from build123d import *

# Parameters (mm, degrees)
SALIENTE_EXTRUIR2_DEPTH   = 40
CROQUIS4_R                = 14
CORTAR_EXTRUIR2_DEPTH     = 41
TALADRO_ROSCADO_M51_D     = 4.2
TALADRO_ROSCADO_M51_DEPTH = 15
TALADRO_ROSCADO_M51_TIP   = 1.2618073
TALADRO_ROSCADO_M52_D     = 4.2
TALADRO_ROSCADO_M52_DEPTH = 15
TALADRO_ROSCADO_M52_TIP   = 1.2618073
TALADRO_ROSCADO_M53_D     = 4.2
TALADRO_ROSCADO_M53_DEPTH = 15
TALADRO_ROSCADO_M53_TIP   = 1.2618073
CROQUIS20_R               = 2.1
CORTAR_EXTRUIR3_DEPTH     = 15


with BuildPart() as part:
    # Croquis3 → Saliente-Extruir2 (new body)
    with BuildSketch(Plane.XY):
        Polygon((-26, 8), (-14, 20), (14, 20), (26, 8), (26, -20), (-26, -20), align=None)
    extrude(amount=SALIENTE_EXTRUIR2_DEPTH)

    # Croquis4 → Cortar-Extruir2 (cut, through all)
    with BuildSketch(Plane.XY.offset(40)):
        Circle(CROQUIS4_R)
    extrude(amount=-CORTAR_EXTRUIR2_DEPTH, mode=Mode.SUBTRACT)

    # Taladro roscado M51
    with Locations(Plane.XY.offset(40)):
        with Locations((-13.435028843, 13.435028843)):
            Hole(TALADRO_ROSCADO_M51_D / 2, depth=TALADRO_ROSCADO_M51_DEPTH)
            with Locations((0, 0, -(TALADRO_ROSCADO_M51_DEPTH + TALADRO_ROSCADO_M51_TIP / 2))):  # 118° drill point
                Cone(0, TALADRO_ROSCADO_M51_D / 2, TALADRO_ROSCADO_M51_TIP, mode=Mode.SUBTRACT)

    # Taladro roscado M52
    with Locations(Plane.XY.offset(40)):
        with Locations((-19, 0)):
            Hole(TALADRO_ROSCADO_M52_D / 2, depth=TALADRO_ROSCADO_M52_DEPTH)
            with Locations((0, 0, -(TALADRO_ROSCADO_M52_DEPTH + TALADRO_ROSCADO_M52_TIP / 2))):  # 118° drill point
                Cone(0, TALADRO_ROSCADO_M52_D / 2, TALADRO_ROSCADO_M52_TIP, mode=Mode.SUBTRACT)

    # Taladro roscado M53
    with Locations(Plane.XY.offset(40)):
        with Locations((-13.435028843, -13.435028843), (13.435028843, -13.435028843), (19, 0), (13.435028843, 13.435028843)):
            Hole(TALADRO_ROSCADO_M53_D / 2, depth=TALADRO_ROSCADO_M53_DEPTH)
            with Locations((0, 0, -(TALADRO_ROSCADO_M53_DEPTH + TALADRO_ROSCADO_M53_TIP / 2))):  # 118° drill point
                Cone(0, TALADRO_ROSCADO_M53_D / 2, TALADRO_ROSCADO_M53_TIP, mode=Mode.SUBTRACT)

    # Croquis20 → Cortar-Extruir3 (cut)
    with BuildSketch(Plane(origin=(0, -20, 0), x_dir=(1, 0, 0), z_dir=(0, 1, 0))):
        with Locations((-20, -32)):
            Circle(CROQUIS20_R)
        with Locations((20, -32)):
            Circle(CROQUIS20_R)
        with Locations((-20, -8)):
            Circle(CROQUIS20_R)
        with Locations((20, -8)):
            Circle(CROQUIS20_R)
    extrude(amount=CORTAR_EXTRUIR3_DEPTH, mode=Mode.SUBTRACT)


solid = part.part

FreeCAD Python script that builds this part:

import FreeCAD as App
import Part
import Sketcher
from FreeCAD import Vector
Q = App.Units.Quantity


def add_polygon(sketch, points):
    """Adds a closed chain of lines whose ends are joined by coincident constraints."""
    first, n = sketch.GeometryCount, len(points)
    for a, b in zip(points, points[1:] + points[:1]):
        sketch.addGeometry(Part.LineSegment(App.Vector(*a, 0), App.Vector(*b, 0)), False)
    for i in range(n):
        sketch.addConstraint(Sketcher.Constraint("Coincident", first + i, 2, first + (i + 1) % n, 1))

doc = App.newDocument("Part")
body = doc.addObject("PartDesign::Body", "Body")

# Sketch on XY plane
sketch1 = body.newObject("Sketcher::SketchObject", "Sketch")
sketch1.AttachmentSupport = (doc.getObject("XY_Plane"), [""])
sketch1.MapMode = "FlatFace"
add_polygon(sketch1, [(-14, 20), (-26, 8), (-26, -20), (26, -20), (26, 8), (14, 20)])  # lines 0-5
sketch1.addConstraint([
    Sketcher.Constraint("Vertical", 1),
    Sketcher.Constraint("Horizontal", 2),
    Sketcher.Constraint("Vertical", 3),
    Sketcher.Constraint("Horizontal", 5),
    Sketcher.Constraint("Symmetric", 0, 2, 3, 2, -2),
    Sketcher.Constraint("Perpendicular", 0, 4),
    Sketcher.Constraint("Equal", 5, 1),
    Sketcher.Constraint("Equal", 0, 4),
    Sketcher.Constraint("DistanceX", 2, 1, 2, 2, Q("52 mm")),
    Sketcher.Constraint("DistanceX", 5, 2, 5, 1, Q("28 mm")),
    Sketcher.Constraint("DistanceY", -1, 1, 0, 2, Q("8 mm")),
])
pad1 = body.newObject("PartDesign::Pad", "Pad")
pad1.Profile = sketch1
pad1.Length = 40

# Sketch on XY plane
sketch2 = body.newObject("Sketcher::SketchObject", "Sketch001")
sketch2.AttachmentSupport = (doc.getObject("XY_Plane"), [""])
sketch2.MapMode = "FlatFace"
sketch2.AttachmentOffset = App.Placement(Vector(0, 0, 40), App.Rotation())
sketch2.addGeometry(Part.Circle(Vector(0, 0, 0), Vector(0, 0, 1), 14), False)
sketch2.addConstraint([
    Sketcher.Constraint("Coincident", 0, 3, -1, 1),
    Sketcher.Constraint("Diameter", 0, Q("28 mm")),
])
pocket1 = body.newObject("PartDesign::Pocket", "Pocket")
pocket1.Profile = sketch2
pocket1.Type = "ThroughAll"

# Sketch on XY plane
sketch3 = body.newObject("Sketcher::SketchObject", "Sketch002")
sketch3.AttachmentSupport = (doc.getObject("XY_Plane"), [""])
sketch3.MapMode = "FlatFace"
sketch3.AttachmentOffset = App.Placement(Vector(0, 0, 40), App.Rotation())
sketch3.addGeometry(Part.Circle(Vector(-13.4, 13.4, 0), Vector(0, 0, 1), 2.1), False)
sketch3.addConstraint([
    Sketcher.Constraint("Diameter", 0, Q("4.2 mm")),
    Sketcher.Constraint("DistanceX", 0, 3, -1, 1, Q("13.435029 mm")),
    Sketcher.Constraint("DistanceY", -1, 1, 0, 3, Q("13.435029 mm")),
])
doc.recompute()
hole = body.newObject("PartDesign::Hole", "Hole")
hole.Profile = sketch3
hole.ThreadType = "None"
hole.Diameter = 4.2
hole.DepthType = "Dimension"
hole.Depth = 15
hole.DrillPoint = "Angled"
hole.DrillPointAngle = 118

# Sketch on XY plane
sketch4 = body.newObject("Sketcher::SketchObject", "Sketch003")
sketch4.AttachmentSupport = (doc.getObject("XY_Plane"), [""])
sketch4.MapMode = "FlatFace"
sketch4.AttachmentOffset = App.Placement(Vector(0, 0, 40), App.Rotation())
sketch4.addGeometry(Part.Circle(Vector(-19, 0, 0), Vector(0, 0, 1), 2.1), False)
sketch4.addConstraint([
    Sketcher.Constraint("PointOnObject", 0, 3, -1),
    Sketcher.Constraint("Diameter", 0, Q("4.2 mm")),
    Sketcher.Constraint("DistanceX", 0, 3, -1, 1, Q("19 mm")),
])
doc.recompute()
hole2 = body.newObject("PartDesign::Hole", "Hole001")
hole2.Profile = sketch4
hole2.ThreadType = "None"
hole2.Diameter = 4.2
hole2.DepthType = "Dimension"
hole2.Depth = 15
hole2.DrillPoint = "Angled"
hole2.DrillPointAngle = 118

# Sketch on XY plane
sketch5 = body.newObject("Sketcher::SketchObject", "Sketch004")
sketch5.AttachmentSupport = (doc.getObject("XY_Plane"), [""])
sketch5.MapMode = "FlatFace"
sketch5.AttachmentOffset = App.Placement(Vector(0, 0, 40), App.Rotation())
sketch5.addGeometry([
    Part.Circle(Vector(-13.4, -13.4, 0), Vector(0, 0, 1), 2.1),
    Part.Circle(Vector(13.4, -13.4, 0), Vector(0, 0, 1), 2.1),
    Part.Circle(Vector(19, 0, 0), Vector(0, 0, 1), 2.1),
    Part.Circle(Vector(13.4, 13.4, 0), Vector(0, 0, 1), 2.1),
], False)
sketch5.addConstraint([
    Sketcher.Constraint("Equal", 0, 1),
    Sketcher.Constraint("Equal", 1, 2),
    Sketcher.Constraint("Equal", 2, 3),
    Sketcher.Constraint("Symmetric", 0, 3, 3, 3, -1, 1),
    Sketcher.Constraint("Symmetric", 0, 3, 1, 3, -2),
    Sketcher.Constraint("PointOnObject", 2, 3, -1),
    Sketcher.Constraint("Diameter", 0, Q("4.2 mm")),
    Sketcher.Constraint("DistanceX", -1, 1, 2, 3, Q("19 mm")),
    Sketcher.Constraint("DistanceX", 0, 3, -1, 1, Q("13.435029 mm")),
    Sketcher.Constraint("DistanceY", 0, 3, -1, 1, Q("13.435029 mm")),
])
doc.recompute()
hole3 = body.newObject("PartDesign::Hole", "Hole002")
hole3.Profile = sketch5
hole3.ThreadType = "None"
hole3.Diameter = 4.2
hole3.DepthType = "Dimension"
hole3.Depth = 15
hole3.DrillPoint = "Angled"
hole3.DrillPointAngle = 118

# Sketch on XZ plane
sketch6 = body.newObject("Sketcher::SketchObject", "Sketch005")
sketch6.AttachmentSupport = (doc.getObject("XZ_Plane"), [""])
sketch6.MapMode = "FlatFace"
sketch6.AttachmentOffset = App.Placement(Vector(0, 0, 20), App.Rotation())
sketch6.addGeometry([
    Part.Circle(Vector(-20, 32, 0), Vector(0, 0, 1), 2.1),
    Part.Circle(Vector(20, 32, 0), Vector(0, 0, 1), 2.1),
    Part.Circle(Vector(-20, 8, 0), Vector(0, 0, 1), 2.1),
    Part.Circle(Vector(20, 8, 0), Vector(0, 0, 1), 2.1),
], False)
sketch6.addConstraint([
    Sketcher.Constraint("Equal", 0, 1),
    Sketcher.Constraint("Equal", 1, 2),
    Sketcher.Constraint("Equal", 2, 3),
    Sketcher.Constraint("Symmetric", 0, 3, 1, 3, -2),
    Sketcher.Constraint("Symmetric", 2, 3, 3, 3, -2),
    Sketcher.Constraint("Vertical", 0, 3, 2, 3),
    Sketcher.Constraint("Diameter", 0, Q("4.2 mm")),
    Sketcher.Constraint("DistanceX", 0, 3, -1, 1, Q("20 mm")),
    Sketcher.Constraint("DistanceY", -1, 1, 0, 3, Q("32 mm")),
    Sketcher.Constraint("DistanceY", -1, 1, 2, 3, Q("8 mm")),
])
pocket2 = body.newObject("PartDesign::Pocket", "Pocket001")
pocket2.Profile = sketch6
pocket2.Length = 15

doc.recompute()
